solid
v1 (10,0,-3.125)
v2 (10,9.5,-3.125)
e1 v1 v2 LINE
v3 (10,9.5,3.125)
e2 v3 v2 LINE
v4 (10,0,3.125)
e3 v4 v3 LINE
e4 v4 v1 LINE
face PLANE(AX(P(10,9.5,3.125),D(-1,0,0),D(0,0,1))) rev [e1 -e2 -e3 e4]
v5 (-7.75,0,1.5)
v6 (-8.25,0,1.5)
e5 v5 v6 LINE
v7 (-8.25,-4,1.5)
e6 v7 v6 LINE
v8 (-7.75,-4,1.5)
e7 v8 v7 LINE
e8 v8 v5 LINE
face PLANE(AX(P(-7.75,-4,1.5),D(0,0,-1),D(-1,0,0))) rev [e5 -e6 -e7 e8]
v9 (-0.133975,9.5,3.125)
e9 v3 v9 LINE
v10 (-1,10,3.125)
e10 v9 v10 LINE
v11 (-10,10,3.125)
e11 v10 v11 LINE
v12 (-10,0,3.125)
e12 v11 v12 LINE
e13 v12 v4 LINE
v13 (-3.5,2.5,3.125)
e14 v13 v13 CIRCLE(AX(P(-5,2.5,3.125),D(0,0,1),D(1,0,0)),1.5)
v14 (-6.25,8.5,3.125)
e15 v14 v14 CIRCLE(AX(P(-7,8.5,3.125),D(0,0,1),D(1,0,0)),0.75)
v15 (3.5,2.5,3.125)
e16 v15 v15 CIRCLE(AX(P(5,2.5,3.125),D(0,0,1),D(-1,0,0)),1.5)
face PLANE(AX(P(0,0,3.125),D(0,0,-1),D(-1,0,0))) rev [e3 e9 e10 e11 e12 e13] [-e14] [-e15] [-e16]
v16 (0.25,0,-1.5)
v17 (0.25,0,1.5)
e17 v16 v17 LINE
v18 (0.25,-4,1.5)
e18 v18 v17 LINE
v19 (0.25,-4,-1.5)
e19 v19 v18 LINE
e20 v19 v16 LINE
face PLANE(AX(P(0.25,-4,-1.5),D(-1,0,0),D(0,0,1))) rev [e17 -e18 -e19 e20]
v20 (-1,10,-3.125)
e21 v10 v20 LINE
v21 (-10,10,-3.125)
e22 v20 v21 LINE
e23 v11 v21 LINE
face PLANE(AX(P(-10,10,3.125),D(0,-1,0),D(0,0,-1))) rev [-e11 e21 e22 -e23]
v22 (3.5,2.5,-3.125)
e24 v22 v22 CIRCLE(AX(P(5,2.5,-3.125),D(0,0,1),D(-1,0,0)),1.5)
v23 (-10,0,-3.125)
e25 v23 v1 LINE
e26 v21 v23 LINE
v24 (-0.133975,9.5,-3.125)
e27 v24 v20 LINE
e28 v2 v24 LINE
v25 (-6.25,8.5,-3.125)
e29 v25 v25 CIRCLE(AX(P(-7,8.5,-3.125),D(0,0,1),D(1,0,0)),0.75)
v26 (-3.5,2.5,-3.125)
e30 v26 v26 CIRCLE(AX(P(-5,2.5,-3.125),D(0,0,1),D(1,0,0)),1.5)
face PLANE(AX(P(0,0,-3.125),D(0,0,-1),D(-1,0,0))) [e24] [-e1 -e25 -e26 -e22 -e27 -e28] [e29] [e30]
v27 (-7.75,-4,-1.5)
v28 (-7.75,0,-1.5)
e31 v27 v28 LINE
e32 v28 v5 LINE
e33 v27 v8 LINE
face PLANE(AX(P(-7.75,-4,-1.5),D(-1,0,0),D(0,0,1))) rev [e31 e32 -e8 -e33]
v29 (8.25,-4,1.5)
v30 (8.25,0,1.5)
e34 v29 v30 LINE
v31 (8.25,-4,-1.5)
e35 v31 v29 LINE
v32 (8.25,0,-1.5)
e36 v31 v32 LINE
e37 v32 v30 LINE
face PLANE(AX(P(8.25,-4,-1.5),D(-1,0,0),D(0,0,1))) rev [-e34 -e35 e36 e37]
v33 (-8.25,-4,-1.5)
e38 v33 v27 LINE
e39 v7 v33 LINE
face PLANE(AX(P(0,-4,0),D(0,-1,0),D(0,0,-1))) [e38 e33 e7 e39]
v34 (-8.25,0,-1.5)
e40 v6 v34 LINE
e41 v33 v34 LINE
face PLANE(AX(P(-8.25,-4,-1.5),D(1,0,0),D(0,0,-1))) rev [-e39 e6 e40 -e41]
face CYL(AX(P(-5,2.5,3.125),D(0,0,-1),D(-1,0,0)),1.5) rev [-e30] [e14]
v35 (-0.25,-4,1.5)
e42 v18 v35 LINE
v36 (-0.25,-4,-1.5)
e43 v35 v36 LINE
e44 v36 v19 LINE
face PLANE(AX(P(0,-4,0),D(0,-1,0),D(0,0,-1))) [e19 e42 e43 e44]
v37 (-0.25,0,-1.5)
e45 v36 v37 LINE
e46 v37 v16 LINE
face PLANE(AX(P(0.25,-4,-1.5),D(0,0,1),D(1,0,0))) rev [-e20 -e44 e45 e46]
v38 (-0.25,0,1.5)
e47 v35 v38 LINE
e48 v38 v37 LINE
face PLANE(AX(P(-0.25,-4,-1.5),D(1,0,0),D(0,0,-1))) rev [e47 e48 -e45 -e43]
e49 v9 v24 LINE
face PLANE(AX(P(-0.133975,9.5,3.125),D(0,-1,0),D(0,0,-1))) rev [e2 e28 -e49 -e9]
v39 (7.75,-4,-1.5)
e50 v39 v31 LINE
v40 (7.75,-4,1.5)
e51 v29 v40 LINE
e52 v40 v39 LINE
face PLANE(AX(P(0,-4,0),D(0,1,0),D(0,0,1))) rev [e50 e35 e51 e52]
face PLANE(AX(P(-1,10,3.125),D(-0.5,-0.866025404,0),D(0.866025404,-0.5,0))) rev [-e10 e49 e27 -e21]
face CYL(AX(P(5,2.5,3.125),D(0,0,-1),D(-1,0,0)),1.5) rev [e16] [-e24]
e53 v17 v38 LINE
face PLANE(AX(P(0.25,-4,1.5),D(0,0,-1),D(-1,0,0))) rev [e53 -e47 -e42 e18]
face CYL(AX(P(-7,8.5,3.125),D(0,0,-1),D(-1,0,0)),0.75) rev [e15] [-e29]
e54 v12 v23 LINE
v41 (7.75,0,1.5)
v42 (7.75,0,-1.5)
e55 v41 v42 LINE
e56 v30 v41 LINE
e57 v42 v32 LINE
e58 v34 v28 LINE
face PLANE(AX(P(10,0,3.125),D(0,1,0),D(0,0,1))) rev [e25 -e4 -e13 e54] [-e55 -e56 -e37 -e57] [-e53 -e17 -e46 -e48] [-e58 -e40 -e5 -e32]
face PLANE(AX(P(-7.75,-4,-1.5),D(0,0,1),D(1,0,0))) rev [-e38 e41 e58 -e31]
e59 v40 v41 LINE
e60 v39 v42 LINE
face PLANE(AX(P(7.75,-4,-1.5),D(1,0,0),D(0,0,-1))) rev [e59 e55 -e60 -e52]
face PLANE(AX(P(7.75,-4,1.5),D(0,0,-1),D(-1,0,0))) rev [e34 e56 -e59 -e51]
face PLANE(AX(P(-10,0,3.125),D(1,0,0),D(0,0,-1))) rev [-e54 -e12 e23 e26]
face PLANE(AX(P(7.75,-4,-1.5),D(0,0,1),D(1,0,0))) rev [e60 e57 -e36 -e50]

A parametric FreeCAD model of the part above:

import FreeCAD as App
import Part
import Sketcher

V = App.Vector
Q = App.Units.Quantity


def add_polygon(sketch, points):
    """Adds a closed chain of lines whose ends are joined by coincident constraints."""
    first, n = sketch.GeometryCount, len(points)
    for a, b in zip(points, points[1:] + points[:1]):
        sketch.addGeometry(Part.LineSegment(App.Vector(*a, 0), App.Vector(*b, 0)), False)
    for i in range(n):
        sketch.addConstraint(Sketcher.Constraint("Coincident", first + i, 2, first + (i + 1) % n, 1))

doc = App.newDocument("Part")
params = doc.addObject("Spreadsheet::Sheet", "Params")
for row, (alias, value) in enumerate([
    ("sketch1_diameter", "3 mm"),
    ("sketch1_diameter2", "1.5 mm"),
    ("sketch1_width", "20 mm"),
    ("sketch1_width2", "9 mm"),
    ("sketch1_height", "10 mm"),
    ("pad1_length", "6.25 mm"),
    ("sketch2_height", "3 mm"),
    ("sketch2_width", "0.5 mm"),
    ("pad2_length", "4 mm"),
], start=1):
    params.set(f"A{row}", alias)
    params.set(f"B{row}", "=" + value)
    params.setAlias(f"B{row}", alias)

body = doc.addObject("PartDesign::Body", "Body")

sketch1 = body.newObject("Sketcher::SketchObject", "Sketch")
sketch1.AttachmentSupport = (doc.getObject("XY_Plane"), [""])
sketch1.MapMode = "FlatFace"
add_polygon(sketch1, [(-10, 0), (10, 0), (10, 9.5), (-0.133975, 9.5), (-1, 10), (-10, 10)])
sketch1.addGeometry(Part.Circle(V(5, 2.5, 0), V(0, 0, 1), 1.5), False)
sketch1.addGeometry(Part.Circle(V(-5, 2.5, 0), V(0, 0, 1), 1.5), False)
sketch1.addGeometry(Part.Circle(V(-7, 8.5, 0), V(0, 0, 1), 0.75), False)
sketch1.addConstraint([
    Sketcher.Constraint("Horizontal", 0),
    Sketcher.Constraint("Vertical", 1),
    Sketcher.Constraint("Horizontal", 2),
    Sketcher.Constraint("Horizontal", 4),
    Sketcher.Constraint("Vertical", 5),
    Sketcher.Constraint("Equal", 6, 7),
    Sketcher.Constraint("Symmetric", 0, 2, 5, 2, -1, 1),
    Sketcher.Constraint("Symmetric", 6, 3, 7, 3, -2),
    Sketcher.Constraint("Diameter", 6, 3.0),
    Sketcher.Constraint("Diameter", 8, 1.5),
    Sketcher.Constraint("DistanceX", 0, 1, 0, 2, 20.0),
    Sketcher.Constraint("DistanceX", 4, 2, 4, 1, 9.0),
    Sketcher.Constraint("DistanceY", 5, 2, 5, 1, 10.0),
    Sketcher.Constraint("Angle", 3, Q("150 deg")),
    Sketcher.Constraint("Distance", 3, 1.0),
    Sketcher.Constraint("DistanceX", -1, 1, 6, 3, 5.0),
    Sketcher.Constraint("DistanceX", 8, 3, -1, 1, 7.0),
    Sketcher.Constraint("DistanceY", 7, 3, 8, 3, 6.0),
    Sketcher.Constraint("DistanceY", 6, 3, 1, 2, 7.0),
])
sketch1.setExpression("Constraints[14]", "Params.sketch1_diameter")
sketch1.setExpression("Constraints[15]", "Params.sketch1_diameter2")
sketch1.setExpression("Constraints[16]", "Params.sketch1_width")
sketch1.setExpression("Constraints[17]", "Params.sketch1_width2")
sketch1.setExpression("Constraints[18]", "Params.sketch1_height")
pad1 = body.newObject("PartDesign::Pad", "Pad")
pad1.Profile = sketch1
pad1.setExpression("Length", "Params.pad1_length")
pad1.Midplane = True

sketch2 = body.newObject("Sketcher::SketchObject", "Sketch001")
sketch2.AttachmentSupport = (doc.getObject("XZ_Plane"), [""])
sketch2.MapMode = "FlatFace"
add_polygon(sketch2, [(-0.25, 1.5), (-0.25, -1.5), (0.25, -1.5), (0.25, 1.5)])
add_polygon(sketch2, [(-8.25, 1.5), (-8.25, -1.5), (-7.75, -1.5), (-7.75, 1.5)])
add_polygon(sketch2, [(7.75, 1.5), (7.75, -1.5), (8.25, -1.5), (8.25, 1.5)])
sketch2.addConstraint([
    Sketcher.Constraint("Vertical", 0),
    Sketcher.Constraint("Horizontal", 1),
    Sketcher.Constraint("Vertical", 2),
    Sketcher.Constraint("Horizontal", 3),
    Sketcher.Constraint("Vertical", 4),
    Sketcher.Constraint("Horizontal", 5),
    Sketcher.Constraint("Vertical", 6),
    Sketcher.Constraint("Horizontal", 7),
    Sketcher.Constraint("Vertical", 8),
    Sketcher.Constraint("Horizontal", 9),
    Sketcher.Constraint("Vertical", 10),
    Sketcher.Constraint("Horizontal", 11),
    Sketcher.Constraint("Symmetric", 0, 2, 2, 2, -1, 1),
    Sketcher.Constraint("Symmetric", 6, 2, 8, 2, -1, 1),
    Sketcher.Constraint("Symmetric", 4, 2, 10, 2, -1, 1),
    Sketcher.Constraint("Horizontal", 1, 2, 4, 2),
    Sketcher.Constraint("Horizontal", 3, 2, 6, 2),
    Sketcher.Constraint("Equal", 3, 5),
    Sketcher.Constraint("DistanceY", 0, 2, 0, 1, 3.0),
    Sketcher.Constraint("DistanceX", 1, 1, 1, 2, 0.5),
    Sketcher.Constraint("DistanceX", 4, 2, 0, 2, 8.0),
])
sketch2.setExpression("Constraints[30]", "Params.sketch2_height")
sketch2.setExpression("Constraints[31]", "Params.sketch2_width")
pad2 = body.newObject("PartDesign::Pad", "Pad001")
pad2.Profile = sketch2
pad2.setExpression("Length", "Params.pad2_length")

doc.recompute()
